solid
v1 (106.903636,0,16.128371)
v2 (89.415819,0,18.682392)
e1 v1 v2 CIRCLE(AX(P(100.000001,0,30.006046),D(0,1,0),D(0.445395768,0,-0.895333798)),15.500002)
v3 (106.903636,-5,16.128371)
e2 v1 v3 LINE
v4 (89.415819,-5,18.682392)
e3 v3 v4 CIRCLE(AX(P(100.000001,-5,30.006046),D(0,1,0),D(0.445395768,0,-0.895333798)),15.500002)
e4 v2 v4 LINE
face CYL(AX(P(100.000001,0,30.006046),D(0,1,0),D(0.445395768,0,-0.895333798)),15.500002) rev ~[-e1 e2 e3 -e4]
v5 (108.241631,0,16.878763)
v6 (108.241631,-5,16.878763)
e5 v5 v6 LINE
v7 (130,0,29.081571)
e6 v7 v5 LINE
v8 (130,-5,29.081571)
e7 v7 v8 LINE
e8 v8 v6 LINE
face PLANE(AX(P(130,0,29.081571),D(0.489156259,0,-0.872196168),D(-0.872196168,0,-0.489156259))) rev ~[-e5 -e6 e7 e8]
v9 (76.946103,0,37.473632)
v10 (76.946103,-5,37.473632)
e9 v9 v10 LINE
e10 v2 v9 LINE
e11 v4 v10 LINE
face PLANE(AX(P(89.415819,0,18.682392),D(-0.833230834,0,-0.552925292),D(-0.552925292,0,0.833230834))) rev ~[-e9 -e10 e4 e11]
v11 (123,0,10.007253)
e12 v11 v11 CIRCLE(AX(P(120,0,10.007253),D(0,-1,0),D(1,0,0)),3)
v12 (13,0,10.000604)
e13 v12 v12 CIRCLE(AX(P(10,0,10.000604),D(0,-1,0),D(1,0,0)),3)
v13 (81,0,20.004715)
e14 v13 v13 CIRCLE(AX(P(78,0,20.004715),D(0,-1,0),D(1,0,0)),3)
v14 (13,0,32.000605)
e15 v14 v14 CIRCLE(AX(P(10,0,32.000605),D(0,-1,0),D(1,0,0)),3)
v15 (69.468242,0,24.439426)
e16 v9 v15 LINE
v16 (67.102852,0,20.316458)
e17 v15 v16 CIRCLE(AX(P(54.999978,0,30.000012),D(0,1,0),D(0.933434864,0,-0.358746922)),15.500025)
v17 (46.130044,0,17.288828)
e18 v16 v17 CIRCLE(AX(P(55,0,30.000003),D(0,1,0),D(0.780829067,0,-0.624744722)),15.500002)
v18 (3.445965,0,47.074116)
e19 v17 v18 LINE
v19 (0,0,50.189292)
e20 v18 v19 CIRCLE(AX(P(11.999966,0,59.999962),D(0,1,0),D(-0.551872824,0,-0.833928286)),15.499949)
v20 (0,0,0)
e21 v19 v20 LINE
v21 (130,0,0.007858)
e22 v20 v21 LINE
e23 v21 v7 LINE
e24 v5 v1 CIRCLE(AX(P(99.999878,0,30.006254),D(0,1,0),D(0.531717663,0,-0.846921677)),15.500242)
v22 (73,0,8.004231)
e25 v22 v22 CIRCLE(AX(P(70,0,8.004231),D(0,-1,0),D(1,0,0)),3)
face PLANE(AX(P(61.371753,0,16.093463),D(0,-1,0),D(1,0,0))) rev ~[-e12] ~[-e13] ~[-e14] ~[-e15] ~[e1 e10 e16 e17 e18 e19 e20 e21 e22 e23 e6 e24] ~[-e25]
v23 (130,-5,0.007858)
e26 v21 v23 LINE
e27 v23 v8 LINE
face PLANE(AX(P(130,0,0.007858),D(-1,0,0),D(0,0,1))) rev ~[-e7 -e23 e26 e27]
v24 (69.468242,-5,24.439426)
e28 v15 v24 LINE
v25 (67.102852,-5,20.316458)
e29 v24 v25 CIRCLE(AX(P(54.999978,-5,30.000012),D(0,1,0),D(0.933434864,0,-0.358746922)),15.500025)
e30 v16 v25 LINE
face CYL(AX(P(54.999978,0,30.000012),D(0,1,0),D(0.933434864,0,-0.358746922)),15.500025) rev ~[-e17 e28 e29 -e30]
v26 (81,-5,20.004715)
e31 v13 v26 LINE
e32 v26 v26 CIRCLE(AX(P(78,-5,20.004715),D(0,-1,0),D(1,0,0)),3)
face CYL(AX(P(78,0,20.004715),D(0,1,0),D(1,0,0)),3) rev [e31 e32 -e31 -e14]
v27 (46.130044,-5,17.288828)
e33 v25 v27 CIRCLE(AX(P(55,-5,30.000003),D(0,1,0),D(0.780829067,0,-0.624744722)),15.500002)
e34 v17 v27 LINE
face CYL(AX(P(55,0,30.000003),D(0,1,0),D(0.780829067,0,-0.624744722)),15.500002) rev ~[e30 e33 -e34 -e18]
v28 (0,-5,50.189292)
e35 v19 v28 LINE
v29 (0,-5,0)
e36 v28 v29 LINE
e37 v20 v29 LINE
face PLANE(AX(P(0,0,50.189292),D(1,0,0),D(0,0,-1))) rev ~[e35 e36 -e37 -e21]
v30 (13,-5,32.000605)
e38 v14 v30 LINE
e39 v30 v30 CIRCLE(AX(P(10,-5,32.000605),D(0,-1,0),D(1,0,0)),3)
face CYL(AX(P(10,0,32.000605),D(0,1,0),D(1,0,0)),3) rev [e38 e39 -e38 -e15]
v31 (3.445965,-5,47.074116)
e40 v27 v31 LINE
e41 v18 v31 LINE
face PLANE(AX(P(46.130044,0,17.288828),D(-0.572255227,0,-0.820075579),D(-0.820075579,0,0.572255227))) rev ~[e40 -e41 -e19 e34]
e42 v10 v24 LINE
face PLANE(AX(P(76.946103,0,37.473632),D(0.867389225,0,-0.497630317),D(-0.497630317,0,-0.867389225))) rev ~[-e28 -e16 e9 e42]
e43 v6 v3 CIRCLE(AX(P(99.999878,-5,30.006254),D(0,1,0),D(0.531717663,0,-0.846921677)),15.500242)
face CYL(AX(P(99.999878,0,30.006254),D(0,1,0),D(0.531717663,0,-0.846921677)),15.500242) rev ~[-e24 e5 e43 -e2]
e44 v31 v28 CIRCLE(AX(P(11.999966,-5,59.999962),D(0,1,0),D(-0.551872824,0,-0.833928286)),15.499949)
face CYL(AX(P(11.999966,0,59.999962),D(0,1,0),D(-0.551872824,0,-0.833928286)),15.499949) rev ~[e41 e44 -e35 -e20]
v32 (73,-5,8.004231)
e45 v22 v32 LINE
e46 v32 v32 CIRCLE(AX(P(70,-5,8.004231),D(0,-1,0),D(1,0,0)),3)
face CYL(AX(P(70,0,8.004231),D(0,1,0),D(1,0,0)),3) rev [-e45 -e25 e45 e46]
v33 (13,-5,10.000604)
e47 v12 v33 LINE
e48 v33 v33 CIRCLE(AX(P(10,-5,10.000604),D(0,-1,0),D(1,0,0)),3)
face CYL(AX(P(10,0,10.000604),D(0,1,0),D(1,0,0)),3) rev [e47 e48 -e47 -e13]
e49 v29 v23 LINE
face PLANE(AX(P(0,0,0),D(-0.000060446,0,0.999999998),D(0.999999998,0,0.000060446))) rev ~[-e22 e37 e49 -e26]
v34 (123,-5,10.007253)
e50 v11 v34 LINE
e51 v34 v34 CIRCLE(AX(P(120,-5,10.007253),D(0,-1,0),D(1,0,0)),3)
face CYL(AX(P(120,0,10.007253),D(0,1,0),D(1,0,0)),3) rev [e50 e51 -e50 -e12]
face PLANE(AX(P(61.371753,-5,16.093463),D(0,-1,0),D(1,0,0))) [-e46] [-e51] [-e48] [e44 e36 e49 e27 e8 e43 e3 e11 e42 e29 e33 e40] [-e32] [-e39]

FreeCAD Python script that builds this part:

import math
import FreeCAD as App
import Part
import Sketcher

V = App.Vector
Q = App.Units.Quantity

doc = App.newDocument("Part")
body = doc.addObject("PartDesign::Body", "Body")

sketch1 = body.newObject("Sketcher::SketchObject", "Sketch")
sketch1.AttachmentSupport = (doc.getObject("XZ_Plane"), [""])
sketch1.MapMode = "FlatFace"
sketch1.addGeometry(Part.LineSegment(V(0, 50.189292, 0), V(0, 0, 0)), False)
sketch1.addGeometry(Part.LineSegment(V(0, 0, 0), V(130, 0.007858, 0)), False)
sketch1.addGeometry(Part.LineSegment(V(130, 0.007858, 0), V(130, 29.081571, 0)), False)
sketch1.addGeometry(Part.LineSegment(V(130, 29.081571, 0), V(108.241631, 16.878763, 0)), False)
sketch1.addGeometry(Part.ArcOfCircle(Part.Circle(V(99.999878, 30.006254, 0), V(0, 0, 1), 15.500242), math.radians(-63.551274), math.radians(-57.878416)), False)
sketch1.addGeometry(Part.ArcOfCircle(Part.Circle(V(100.000001, 30.006046, 0), V(0, 0, 1), 15.500002), math.radians(-133.066784), math.radians(-63.551337)), False)
sketch1.addGeometry(Part.LineSegment(V(89.415819, 18.682392, 0), V(76.946103, 37.473632, 0)), False)
sketch1.addGeometry(Part.LineSegment(V(76.946103, 37.473632, 0), V(69.468242, 24.439426, 0)), False)
sketch1.addGeometry(Part.ArcOfCircle(Part.Circle(V(54.999978, 30.000012, 0), V(0, 0, 1), 15.500025), math.radians(-38.663431), math.radians(-21.02326)), False)
sketch1.addGeometry(Part.ArcOfCircle(Part.Circle(V(55, 30.000003, 0), V(0, 0, 1), 15.500002), math.radians(-124.907632), math.radians(-38.663453)), False)
sketch1.addGeometry(Part.LineSegment(V(46.130044, 17.288828, 0), V(3.445965, 47.074116, 0)), False)
sketch1.addGeometry(Part.ArcOfCircle(Part.Circle(V(11.999966, 59.999962, 0), V(0, 0, 1), 15.499949), math.radians(-140.732004), math.radians(-123.495592)), False)
sketch1.addGeometry(Part.Circle(V(10, 10.000604, 0), V(0, 0, 1), 3), False)
sketch1.addGeometry(Part.Circle(V(70, 8.004231, 0), V(0, 0, 1), 3), False)
sketch1.addGeometry(Part.Circle(V(120, 10.007253, 0), V(0, 0, 1), 3), False)
sketch1.addGeometry(Part.Circle(V(10, 32.000605, 0), V(0, 0, 1), 3), False)
sketch1.addGeometry(Part.Circle(V(78, 20.004715, 0), V(0, 0, 1), 3), False)
sketch1.addConstraint(Sketcher.Constraint("Coincident", 0, 2, 1, 1))
sketch1.addConstraint(Sketcher.Constraint("Coincident", 1, 2, 2, 1))
sketch1.addConstraint(Sketcher.Constraint("Coincident", 2, 2, 3, 1))
sketch1.addConstraint(Sketcher.Constraint("Coincident", 3, 2, 4, 2))
sketch1.addConstraint(Sketcher.Constraint("Coincident", 4, 1, 5, 2))
sketch1.addConstraint(Sketcher.Constraint("Coincident", 5, 1, 6, 1))
sketch1.addConstraint(Sketcher.Constraint("Coincident", 6, 2, 7, 1))
sketch1.addConstraint(Sketcher.Constraint("Coincident", 7, 2, 8, 2))
sketch1.addConstraint(Sketcher.Constraint("Coincident", 8, 1, 9, 2))
sketch1.addConstraint(Sketcher.Constraint("Coincident", 9, 1, 10, 1))
sketch1.addConstraint(Sketcher.Constraint("Coincident", 10, 2, 11, 2))
sketch1.addConstraint(Sketcher.Constraint("Coincident", 11, 1, 0, 1))
sketch1.addConstraint(Sketcher.Constraint("Vertical", 0))
sketch1.addConstraint(Sketcher.Constraint("Vertical", 2))
sketch1.addConstraint(Sketcher.Constraint("Coincident", 0, 2, -1, 1))
sketch1.addConstraint(Sketcher.Constraint("Diameter", 12, Q("6 mm")))
sketch1.addConstraint(Sketcher.Constraint("Diameter", 13, Q("6 mm")))
sketch1.addConstraint(Sketcher.Constraint("Diameter", 14, Q("6 mm")))
sketch1.addConstraint(Sketcher.Constraint("Diameter", 15, Q("6 mm")))
sketch1.addConstraint(Sketcher.Constraint("Diameter", 16, Q("6 mm")))
sketch1.addConstraint(Sketcher.Constraint("Radius", 5, Q("15.500002 mm")))
sketch1.addConstraint(Sketcher.Constraint("Distance", 1, Q("130 mm")))
sketch1.addConstraint(Sketcher.Constraint("DistanceX", -1, 1, 5, 3, Q("100.000001 mm")))
sketch1.addConstraint(Sketcher.Constraint("DistanceX", -1, 1, 9, 3, Q("55 mm")))
sketch1.addConstraint(Sketcher.Constraint("DistanceX", -1, 1, 12, 3, Q("10 mm")))
sketch1.addConstraint(Sketcher.Constraint("DistanceX", -1, 1, 13, 3, Q("70 mm")))
sketch1.addConstraint(Sketcher.Constraint("DistanceX", -1, 1, 14, 3, Q("120 mm")))
sketch1.addConstraint(Sketcher.Constraint("DistanceX", -1, 1, 15, 3, Q("10 mm")))
sketch1.addConstraint(Sketcher.Constraint("DistanceX", -1, 1, 16, 3, Q("78 mm")))
sketch1.addConstraint(Sketcher.Constraint("DistanceY", 12, 3, 15, 3, Q("22.000001 mm")))
sketch1.addConstraint(Sketcher.Constraint("Radius", 11, Q("15.499949 mm")))
sketch1.addConstraint(Sketcher.Constraint("Radius", 4, Q("15.500242 mm")))
sketch1.addConstraint(Sketcher.Constraint("Radius", 8, Q("15.500025 mm")))
sketch1.addConstraint(Sketcher.Constraint("Radius", 9, Q("15.500002 mm")))
sketch1.addConstraint(Sketcher.Constraint("DistanceY", 14, 3, 4, 3, Q("19.999001 mm")))
sketch1.addConstraint(Sketcher.Constraint("DistanceX", 10, 2, 11, 3, Q("8.554001 mm")))
sketch1.addConstraint(Sketcher.Constraint("DistanceX", 8, 3, 4, 3, Q("44.999901 mm")))
sketch1.addConstraint(Sketcher.Constraint("DistanceY", 12, 3, 9, 3, Q("19.999399 mm")))
sketch1.addConstraint(Sketcher.Constraint("DistanceY", 4, 1, 2, 2, Q("12.9532 mm")))
sketch1.addConstraint(Sketcher.Constraint("DistanceX", 9, 1, 7, 2, Q("23.338198 mm")))
sketch1.addConstraint(Sketcher.Constraint("DistanceY", 9, 1, 7, 2, Q("7.150598 mm")))
sketch1.addConstraint(Sketcher.Constraint("Distance", 6, Q("22.552262 mm")))
sketch1.addConstraint(Sketcher.Constraint("Distance", 7, Q("15.02694 mm")))
sketch1.addConstraint(Sketcher.Constraint("DistanceY", 0, 2, 0, 1, Q("50.189292 mm")))
sketch1.addConstraint(Sketcher.Constraint("DistanceY", 2, 1, 2, 2, Q("29.073713 mm")))
sketch1.addConstraint(Sketcher.Constraint("DistanceX", -1, 1, 4, 3, Q("99.999878 mm")))
sketch1.addConstraint(Sketcher.Constraint("DistanceY", -1, 1, 11, 3, Q("59.999962 mm")))
sketch1.addConstraint(Sketcher.Constraint("DistanceY", -1, 1, 13, 3, Q("8.004231 mm")))
sketch1.addConstraint(Sketcher.Constraint("DistanceY", -1, 1, 2, 2, Q("29.081571 mm")))
sketch1.addConstraint(Sketcher.Constraint("DistanceX", -1, 1, 3, 2, Q("108.241631 mm")))
sketch1.addConstraint(Sketcher.Constraint("DistanceX", -1, 1, 5, 1, Q("89.415819 mm")))
sketch1.addConstraint(Sketcher.Constraint("DistanceX", -1, 1, 8, 1, Q("67.102852 mm")))
sketch1.addConstraint(Sketcher.Constraint("DistanceY", -1, 1, 8, 1, Q("20.316458 mm")))
sketch1.addConstraint(Sketcher.Constraint("DistanceY", 8, 3, 4, 3, Q("0.006242 mm")))
sketch1.addConstraint(Sketcher.Constraint("DistanceY", 16, 3, 4, 3, Q("10.001539 mm")))
pad1 = body.newObject("PartDesign::Pad", "Pad")
pad1.Profile = sketch1
pad1.Length = 5

doc.recompute()
